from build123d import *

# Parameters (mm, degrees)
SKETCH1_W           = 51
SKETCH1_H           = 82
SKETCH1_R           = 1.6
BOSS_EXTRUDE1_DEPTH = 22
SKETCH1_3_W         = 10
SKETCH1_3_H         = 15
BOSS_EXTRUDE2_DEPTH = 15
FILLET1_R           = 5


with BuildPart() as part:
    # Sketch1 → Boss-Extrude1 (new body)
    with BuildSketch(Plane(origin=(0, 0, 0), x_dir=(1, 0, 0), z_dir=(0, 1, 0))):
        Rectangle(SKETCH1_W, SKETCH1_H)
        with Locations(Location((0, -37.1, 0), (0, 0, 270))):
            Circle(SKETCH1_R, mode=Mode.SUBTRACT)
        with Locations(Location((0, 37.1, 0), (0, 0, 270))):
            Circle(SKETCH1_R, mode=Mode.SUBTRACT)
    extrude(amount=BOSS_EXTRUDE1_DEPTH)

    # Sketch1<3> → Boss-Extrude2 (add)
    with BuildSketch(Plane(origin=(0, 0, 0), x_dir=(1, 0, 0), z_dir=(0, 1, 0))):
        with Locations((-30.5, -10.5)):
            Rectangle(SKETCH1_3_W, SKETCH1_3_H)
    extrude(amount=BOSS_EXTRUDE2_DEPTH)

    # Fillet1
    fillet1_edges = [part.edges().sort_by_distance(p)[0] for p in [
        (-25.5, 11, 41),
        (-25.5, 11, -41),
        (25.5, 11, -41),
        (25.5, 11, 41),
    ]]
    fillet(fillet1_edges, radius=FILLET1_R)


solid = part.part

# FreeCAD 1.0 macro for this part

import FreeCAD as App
import Part
import Sketcher


def edges_at(feature, points):
    """Names of the edges that pass closest to the given points."""
    edges = feature.Shape.Edges
    near = lambda p: min(range(len(edges)), key=lambda i: edges[i].distToShape(Part.Vertex(*p))[0])
    return sorted({f"Edge{near(p) + 1}" for p in points})


def add_polygon(sketch, points):
    """Adds a closed chain of lines whose ends are joined by coincident constraints."""
    first, n = sketch.GeometryCount, len(points)
    for a, b in zip(points, points[1:] + points[:1]):
        sketch.addGeometry(Part.LineSegment(App.Vector(*a, 0), App.Vector(*b, 0)), False)
    for i in range(n):
        sketch.addConstraint(Sketcher.Constraint("Coincident", first + i, 2, first + (i + 1) % n, 1))

doc = App.newDocument("Part")
params = doc.addObject("Spreadsheet::Sheet", "Params")
for row, (alias, value) in enumerate([
    ("sketch1_diameter", "3.2 mm"),
    ("sketch1_width", "51 mm"),
    ("sketch1_height", "82 mm"),
    ("pad1_length", "22 mm"),
    ("sketch2_width", "10 mm"),
    ("sketch2_height", "15 mm"),
    ("pad2_length", "15 mm"),
    ("fillet_radius", "5 mm"),
], start=1):
    params.set(f"A{row}", alias)
    params.set(f"B{row}", "=" + value)
    params.setAlias(f"B{row}", alias)

body = doc.addObject("PartDesign::Body", "Body")

# Sketch on XZ plane
sketch1 = body.newObject("Sketcher::SketchObject", "Sketch")
sketch1.AttachmentSupport = (doc.getObject("XZ_Plane"), [""])
sketch1.MapMode = "FlatFace"
add_polygon(sketch1, [(-25.5, -41), (-25.5, 41), (25.5, 41), (25.5, -41)])  # lines 0-3
sketch1.addGeometry(Part.Circle(App.Vector(0, 37.1, 0), App.Vector(0, 0, 1), 1.6), False)  # 4
sketch1.addGeometry(Part.Circle(App.Vector(0, -37.1, 0), App.Vector(0, 0, 1), 1.6), False)  # 5
sketch1.addConstraint(Sketcher.Constraint("Vertical", 0))
sketch1.addConstraint(Sketcher.Constraint("Horizontal", 1))
sketch1.addConstraint(Sketcher.Constraint("Vertical", 2))
sketch1.addConstraint(Sketcher.Constraint("Horizontal", 3))
sketch1.addConstraint(Sketcher.Constraint("Equal", 4, 5))
sketch1.addConstraint(Sketcher.Constraint("Symmetric", 4, 3, 5, 3, -1, 1))
sketch1.addConstraint(Sketcher.Constraint("Symmetric", 0, 2, 2, 2, -1, 1))
sketch1.addConstraint(Sketcher.Constraint("PointOnObject", 4, 3, -2))
sketch1.addConstraint(Sketcher.Constraint("Diameter", 4, 3.2))
sketch1.addConstraint(Sketcher.Constraint("DistanceX", 1, 1, 1, 2, 51.0))
sketch1.addConstraint(Sketcher.Constraint("DistanceY", 0, 1, 0, 2, 82.0))
sketch1.addConstraint(Sketcher.Constraint("DistanceY", -1, 1, 4, 3, 37.1))
sketch1.setExpression("Constraints[12]", "Params.sketch1_diameter")
sketch1.setExpression("Constraints[13]", "Params.sketch1_width")
sketch1.setExpression("Constraints[14]", "Params.sketch1_height")
pad1 = body.newObject("PartDesign::Pad", "Pad")
pad1.Profile = sketch1
pad1.setExpression("Length", "Params.pad1_length")
pad1.Reversed = True

# Sketch on XZ plane
sketch2 = body.newObject("Sketcher::SketchObject", "Sketch001")
sketch2.AttachmentSupport = (doc.getObject("XZ_Plane"), [""])
sketch2.MapMode = "FlatFace"
add_polygon(sketch2, [(-35.5, 3), (-35.5, 18), (-25.5, 18), (-25.5, 3)])  # lines 0-3
sketch2.addConstraint(Sketcher.Constraint("Vertical", 0))
sketch2.addConstraint(Sketcher.Constraint("Horizontal", 1))
sketch2.addConstraint(Sketcher.Constraint("Vertical", 2))
sketch2.addConstraint(Sketcher.Constraint("Horizontal", 3))
sketch2.addConstraint(Sketcher.Constraint("DistanceX", 1, 1, 1, 2, 10.0))
sketch2.addConstraint(Sketcher.Constraint("DistanceY", 0, 1, 0, 2, 15.0))
sketch2.addConstraint(Sketcher.Constraint("DistanceY", -1, 1, 0, 2, 18.0))
sketch2.addConstraint(Sketcher.Constraint("DistanceX", 0, 2, -1, 1, 35.5))
sketch2.setExpression("Constraints[8]", "Params.sketch2_width")
sketch2.setExpression("Constraints[9]", "Params.sketch2_height")
pad2 = body.newObject("PartDesign::Pad", "Pad001")
pad2.Profile = sketch2
pad2.setExpression("Length", "Params.pad2_length")
pad2.Reversed = True
doc.recompute()

fillet = body.newObject("PartDesign::Fillet", "Fillet")
fillet.Base = (pad2, edges_at(pad2, [
    (-25.5, 11, 41),
    (-25.5, 11, -41),
    (25.5, 11, -41),
    (25.5, 11, 41),
]))
fillet.setExpression("Radius", "Params.fillet_radius")

doc.recompute()
